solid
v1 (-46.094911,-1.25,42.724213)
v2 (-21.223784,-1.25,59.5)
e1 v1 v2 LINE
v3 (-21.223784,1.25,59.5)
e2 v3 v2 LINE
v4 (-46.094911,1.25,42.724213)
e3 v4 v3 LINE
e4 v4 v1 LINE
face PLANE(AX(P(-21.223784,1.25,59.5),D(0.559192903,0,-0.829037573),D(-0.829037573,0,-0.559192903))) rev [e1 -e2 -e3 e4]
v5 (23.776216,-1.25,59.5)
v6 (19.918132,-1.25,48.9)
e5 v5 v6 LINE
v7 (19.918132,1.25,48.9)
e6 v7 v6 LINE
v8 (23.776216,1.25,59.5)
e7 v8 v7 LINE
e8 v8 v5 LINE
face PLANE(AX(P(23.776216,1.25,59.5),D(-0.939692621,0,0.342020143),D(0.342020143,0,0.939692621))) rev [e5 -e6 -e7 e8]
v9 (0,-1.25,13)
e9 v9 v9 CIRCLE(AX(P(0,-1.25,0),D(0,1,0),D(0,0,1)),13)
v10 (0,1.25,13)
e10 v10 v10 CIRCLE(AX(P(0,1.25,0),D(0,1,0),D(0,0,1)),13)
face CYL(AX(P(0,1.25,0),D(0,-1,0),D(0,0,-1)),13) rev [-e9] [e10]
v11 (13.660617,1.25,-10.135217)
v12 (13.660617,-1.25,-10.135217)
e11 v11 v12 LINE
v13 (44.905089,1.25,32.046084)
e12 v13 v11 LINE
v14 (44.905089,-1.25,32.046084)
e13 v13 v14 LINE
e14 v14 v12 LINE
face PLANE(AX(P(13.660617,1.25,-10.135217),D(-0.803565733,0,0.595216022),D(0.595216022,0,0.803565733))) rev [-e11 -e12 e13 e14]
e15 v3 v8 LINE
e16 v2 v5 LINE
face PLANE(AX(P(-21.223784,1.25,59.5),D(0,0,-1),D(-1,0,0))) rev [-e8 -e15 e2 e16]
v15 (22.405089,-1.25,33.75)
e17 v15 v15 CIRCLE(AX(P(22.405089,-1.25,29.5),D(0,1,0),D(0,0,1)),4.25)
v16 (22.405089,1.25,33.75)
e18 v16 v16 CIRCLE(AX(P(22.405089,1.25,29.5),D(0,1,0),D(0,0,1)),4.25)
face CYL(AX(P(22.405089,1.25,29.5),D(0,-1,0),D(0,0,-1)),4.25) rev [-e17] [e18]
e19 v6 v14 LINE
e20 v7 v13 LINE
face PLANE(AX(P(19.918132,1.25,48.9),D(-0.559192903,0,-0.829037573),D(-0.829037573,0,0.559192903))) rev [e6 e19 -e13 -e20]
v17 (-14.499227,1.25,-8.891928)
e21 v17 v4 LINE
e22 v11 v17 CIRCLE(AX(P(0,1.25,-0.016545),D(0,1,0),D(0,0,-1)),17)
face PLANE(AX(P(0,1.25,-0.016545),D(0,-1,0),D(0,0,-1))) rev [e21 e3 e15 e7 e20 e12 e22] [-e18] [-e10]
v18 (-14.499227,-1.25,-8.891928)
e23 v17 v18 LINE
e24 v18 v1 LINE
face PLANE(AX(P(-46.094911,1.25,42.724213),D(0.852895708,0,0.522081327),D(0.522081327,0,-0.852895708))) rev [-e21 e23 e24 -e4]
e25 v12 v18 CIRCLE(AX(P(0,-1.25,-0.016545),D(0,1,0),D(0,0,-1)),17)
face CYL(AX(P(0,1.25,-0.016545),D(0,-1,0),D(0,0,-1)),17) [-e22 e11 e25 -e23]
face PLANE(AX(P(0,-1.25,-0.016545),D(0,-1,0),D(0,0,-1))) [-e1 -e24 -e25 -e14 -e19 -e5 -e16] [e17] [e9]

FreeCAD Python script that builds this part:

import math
import FreeCAD as App
import Part
import Sketcher
Q = App.Units.Quantity

doc = App.newDocument("Part")
params = doc.addObject("Spreadsheet::Sheet", "Params")
for row, (alias, value) in enumerate([
    ("sketch1_diameter", "26 mm"),
    ("sketch1_radius", "17 mm"),
    ("sketch1_diameter2", "8.5 mm"),
    ("sketch1_width", "45 mm"),
    ("sketch1_length", "30 mm"),
    ("pad1_length", "2.5 mm"),
], start=1):
    params.set(f"A{row}", alias)
    params.set(f"B{row}", "=" + value)
    params.setAlias(f"B{row}", alias)

body = doc.addObject("PartDesign::Body", "Body")

# Sketch on XZ plane
sketch1 = body.newObject("Sketcher::SketchObject", "Sketch")
sketch1.AttachmentSupport = (doc.getObject("XZ_Plane"), [""])
sketch1.MapMode = "FlatFace"
sketch1.addGeometry([
    Part.LineSegment(App.Vector(-21.2, 59.5, 0), App.Vector(23.8, 59.5, 0)),  # 0
    Part.LineSegment(App.Vector(23.8, 59.5, 0), App.Vector(19.9, 48.9, 0)),  # 1
    Part.LineSegment(App.Vector(19.9, 48.9, 0), App.Vector(44.9, 32, 0)),  # 2
    Part.LineSegment(App.Vector(44.9, 32, 0), App.Vector(13.7, -10.1, 0)),  # 3
    Part.ArcOfCircle(Part.Circle(App.Vector(0, 0, 0), App.Vector(0, 0, 1), 17), math.radians(-149), math.radians(-37)),  # 4
    Part.LineSegment(App.Vector(-14.5, -8.9, 0), App.Vector(-46.1, 42.7, 0)),  # 5
    Part.LineSegment(App.Vector(-46.1, 42.7, 0), App.Vector(-21.2, 59.5, 0)),  # 6
    Part.Circle(App.Vector(22.4, 29.5, 0), App.Vector(0, 0, 1), 4.2),  # 7
    Part.Circle(App.Vector(0, 0, 0), App.Vector(0, 0, 1), 13),  # 8
], False)
sketch1.addConstraint([
    Sketcher.Constraint("Coincident", 0, 2, 1, 1),
    Sketcher.Constraint("Coincident", 1, 2, 2, 1),
    Sketcher.Constraint("Coincident", 2, 2, 3, 1),
    Sketcher.Constraint("Tangent", 3, 2, 4, 2),
    Sketcher.Constraint("Tangent", 4, 1, 5, 1),
    Sketcher.Constraint("Coincident", 5, 2, 6, 1),
    Sketcher.Constraint("Coincident", 6, 2, 0, 1),
    Sketcher.Constraint("Horizontal", 0),
    Sketcher.Constraint("Coincident", 8, 3, -1, 1),
    Sketcher.Constraint("PointOnObject", 4, 3, -2),
    Sketcher.Constraint("Diameter", 8, 26.0),
    Sketcher.Constraint("Radius", 4, 17.0),
    Sketcher.Constraint("Diameter", 7, 8.5),
    Sketcher.Constraint("DistanceX", 0, 1, 0, 2, 45.0),
    Sketcher.Constraint("Angle", 1, Q("-110 deg")),
    Sketcher.Constraint("Angle", 2, Q("-34 deg")),
    Sketcher.Constraint("Angle", 6, Q("34 deg")),
    Sketcher.Constraint("Distance", 6, 30.0),
    Sketcher.Constraint("DistanceY", 7, 3, 0, 2, 30.0),
    Sketcher.Constraint("DistanceY", -1, 1, 7, 3, 29.5),
    Sketcher.Constraint("DistanceY", -1, 1, 1, 2, 48.9),
    Sketcher.Constraint("DistanceX", 7, 3, 2, 2, 22.5),
    Sketcher.Constraint("DistanceX", 5, 2, 7, 3, 68.5),
    Sketcher.Constraint("Distance", 5, 60.518701),
    Sketcher.Constraint("DistanceY", 3, 2, 2, 2, 42.181302),
])
sketch1.setExpression("Constraints[10]", "Params.sketch1_diameter")
sketch1.setExpression("Constraints[11]", "Params.sketch1_radius")
sketch1.setExpression("Constraints[12]", "Params.sketch1_diameter2")
sketch1.setExpression("Constraints[13]", "Params.sketch1_width")
sketch1.setExpression("Constraints[17]", "Params.sketch1_length")
pad1 = body.newObject("PartDesign::Pad", "Pad")
pad1.Profile = sketch1
pad1.setExpression("Length", "Params.pad1_length")
pad1.Midplane = True

doc.recompute()
